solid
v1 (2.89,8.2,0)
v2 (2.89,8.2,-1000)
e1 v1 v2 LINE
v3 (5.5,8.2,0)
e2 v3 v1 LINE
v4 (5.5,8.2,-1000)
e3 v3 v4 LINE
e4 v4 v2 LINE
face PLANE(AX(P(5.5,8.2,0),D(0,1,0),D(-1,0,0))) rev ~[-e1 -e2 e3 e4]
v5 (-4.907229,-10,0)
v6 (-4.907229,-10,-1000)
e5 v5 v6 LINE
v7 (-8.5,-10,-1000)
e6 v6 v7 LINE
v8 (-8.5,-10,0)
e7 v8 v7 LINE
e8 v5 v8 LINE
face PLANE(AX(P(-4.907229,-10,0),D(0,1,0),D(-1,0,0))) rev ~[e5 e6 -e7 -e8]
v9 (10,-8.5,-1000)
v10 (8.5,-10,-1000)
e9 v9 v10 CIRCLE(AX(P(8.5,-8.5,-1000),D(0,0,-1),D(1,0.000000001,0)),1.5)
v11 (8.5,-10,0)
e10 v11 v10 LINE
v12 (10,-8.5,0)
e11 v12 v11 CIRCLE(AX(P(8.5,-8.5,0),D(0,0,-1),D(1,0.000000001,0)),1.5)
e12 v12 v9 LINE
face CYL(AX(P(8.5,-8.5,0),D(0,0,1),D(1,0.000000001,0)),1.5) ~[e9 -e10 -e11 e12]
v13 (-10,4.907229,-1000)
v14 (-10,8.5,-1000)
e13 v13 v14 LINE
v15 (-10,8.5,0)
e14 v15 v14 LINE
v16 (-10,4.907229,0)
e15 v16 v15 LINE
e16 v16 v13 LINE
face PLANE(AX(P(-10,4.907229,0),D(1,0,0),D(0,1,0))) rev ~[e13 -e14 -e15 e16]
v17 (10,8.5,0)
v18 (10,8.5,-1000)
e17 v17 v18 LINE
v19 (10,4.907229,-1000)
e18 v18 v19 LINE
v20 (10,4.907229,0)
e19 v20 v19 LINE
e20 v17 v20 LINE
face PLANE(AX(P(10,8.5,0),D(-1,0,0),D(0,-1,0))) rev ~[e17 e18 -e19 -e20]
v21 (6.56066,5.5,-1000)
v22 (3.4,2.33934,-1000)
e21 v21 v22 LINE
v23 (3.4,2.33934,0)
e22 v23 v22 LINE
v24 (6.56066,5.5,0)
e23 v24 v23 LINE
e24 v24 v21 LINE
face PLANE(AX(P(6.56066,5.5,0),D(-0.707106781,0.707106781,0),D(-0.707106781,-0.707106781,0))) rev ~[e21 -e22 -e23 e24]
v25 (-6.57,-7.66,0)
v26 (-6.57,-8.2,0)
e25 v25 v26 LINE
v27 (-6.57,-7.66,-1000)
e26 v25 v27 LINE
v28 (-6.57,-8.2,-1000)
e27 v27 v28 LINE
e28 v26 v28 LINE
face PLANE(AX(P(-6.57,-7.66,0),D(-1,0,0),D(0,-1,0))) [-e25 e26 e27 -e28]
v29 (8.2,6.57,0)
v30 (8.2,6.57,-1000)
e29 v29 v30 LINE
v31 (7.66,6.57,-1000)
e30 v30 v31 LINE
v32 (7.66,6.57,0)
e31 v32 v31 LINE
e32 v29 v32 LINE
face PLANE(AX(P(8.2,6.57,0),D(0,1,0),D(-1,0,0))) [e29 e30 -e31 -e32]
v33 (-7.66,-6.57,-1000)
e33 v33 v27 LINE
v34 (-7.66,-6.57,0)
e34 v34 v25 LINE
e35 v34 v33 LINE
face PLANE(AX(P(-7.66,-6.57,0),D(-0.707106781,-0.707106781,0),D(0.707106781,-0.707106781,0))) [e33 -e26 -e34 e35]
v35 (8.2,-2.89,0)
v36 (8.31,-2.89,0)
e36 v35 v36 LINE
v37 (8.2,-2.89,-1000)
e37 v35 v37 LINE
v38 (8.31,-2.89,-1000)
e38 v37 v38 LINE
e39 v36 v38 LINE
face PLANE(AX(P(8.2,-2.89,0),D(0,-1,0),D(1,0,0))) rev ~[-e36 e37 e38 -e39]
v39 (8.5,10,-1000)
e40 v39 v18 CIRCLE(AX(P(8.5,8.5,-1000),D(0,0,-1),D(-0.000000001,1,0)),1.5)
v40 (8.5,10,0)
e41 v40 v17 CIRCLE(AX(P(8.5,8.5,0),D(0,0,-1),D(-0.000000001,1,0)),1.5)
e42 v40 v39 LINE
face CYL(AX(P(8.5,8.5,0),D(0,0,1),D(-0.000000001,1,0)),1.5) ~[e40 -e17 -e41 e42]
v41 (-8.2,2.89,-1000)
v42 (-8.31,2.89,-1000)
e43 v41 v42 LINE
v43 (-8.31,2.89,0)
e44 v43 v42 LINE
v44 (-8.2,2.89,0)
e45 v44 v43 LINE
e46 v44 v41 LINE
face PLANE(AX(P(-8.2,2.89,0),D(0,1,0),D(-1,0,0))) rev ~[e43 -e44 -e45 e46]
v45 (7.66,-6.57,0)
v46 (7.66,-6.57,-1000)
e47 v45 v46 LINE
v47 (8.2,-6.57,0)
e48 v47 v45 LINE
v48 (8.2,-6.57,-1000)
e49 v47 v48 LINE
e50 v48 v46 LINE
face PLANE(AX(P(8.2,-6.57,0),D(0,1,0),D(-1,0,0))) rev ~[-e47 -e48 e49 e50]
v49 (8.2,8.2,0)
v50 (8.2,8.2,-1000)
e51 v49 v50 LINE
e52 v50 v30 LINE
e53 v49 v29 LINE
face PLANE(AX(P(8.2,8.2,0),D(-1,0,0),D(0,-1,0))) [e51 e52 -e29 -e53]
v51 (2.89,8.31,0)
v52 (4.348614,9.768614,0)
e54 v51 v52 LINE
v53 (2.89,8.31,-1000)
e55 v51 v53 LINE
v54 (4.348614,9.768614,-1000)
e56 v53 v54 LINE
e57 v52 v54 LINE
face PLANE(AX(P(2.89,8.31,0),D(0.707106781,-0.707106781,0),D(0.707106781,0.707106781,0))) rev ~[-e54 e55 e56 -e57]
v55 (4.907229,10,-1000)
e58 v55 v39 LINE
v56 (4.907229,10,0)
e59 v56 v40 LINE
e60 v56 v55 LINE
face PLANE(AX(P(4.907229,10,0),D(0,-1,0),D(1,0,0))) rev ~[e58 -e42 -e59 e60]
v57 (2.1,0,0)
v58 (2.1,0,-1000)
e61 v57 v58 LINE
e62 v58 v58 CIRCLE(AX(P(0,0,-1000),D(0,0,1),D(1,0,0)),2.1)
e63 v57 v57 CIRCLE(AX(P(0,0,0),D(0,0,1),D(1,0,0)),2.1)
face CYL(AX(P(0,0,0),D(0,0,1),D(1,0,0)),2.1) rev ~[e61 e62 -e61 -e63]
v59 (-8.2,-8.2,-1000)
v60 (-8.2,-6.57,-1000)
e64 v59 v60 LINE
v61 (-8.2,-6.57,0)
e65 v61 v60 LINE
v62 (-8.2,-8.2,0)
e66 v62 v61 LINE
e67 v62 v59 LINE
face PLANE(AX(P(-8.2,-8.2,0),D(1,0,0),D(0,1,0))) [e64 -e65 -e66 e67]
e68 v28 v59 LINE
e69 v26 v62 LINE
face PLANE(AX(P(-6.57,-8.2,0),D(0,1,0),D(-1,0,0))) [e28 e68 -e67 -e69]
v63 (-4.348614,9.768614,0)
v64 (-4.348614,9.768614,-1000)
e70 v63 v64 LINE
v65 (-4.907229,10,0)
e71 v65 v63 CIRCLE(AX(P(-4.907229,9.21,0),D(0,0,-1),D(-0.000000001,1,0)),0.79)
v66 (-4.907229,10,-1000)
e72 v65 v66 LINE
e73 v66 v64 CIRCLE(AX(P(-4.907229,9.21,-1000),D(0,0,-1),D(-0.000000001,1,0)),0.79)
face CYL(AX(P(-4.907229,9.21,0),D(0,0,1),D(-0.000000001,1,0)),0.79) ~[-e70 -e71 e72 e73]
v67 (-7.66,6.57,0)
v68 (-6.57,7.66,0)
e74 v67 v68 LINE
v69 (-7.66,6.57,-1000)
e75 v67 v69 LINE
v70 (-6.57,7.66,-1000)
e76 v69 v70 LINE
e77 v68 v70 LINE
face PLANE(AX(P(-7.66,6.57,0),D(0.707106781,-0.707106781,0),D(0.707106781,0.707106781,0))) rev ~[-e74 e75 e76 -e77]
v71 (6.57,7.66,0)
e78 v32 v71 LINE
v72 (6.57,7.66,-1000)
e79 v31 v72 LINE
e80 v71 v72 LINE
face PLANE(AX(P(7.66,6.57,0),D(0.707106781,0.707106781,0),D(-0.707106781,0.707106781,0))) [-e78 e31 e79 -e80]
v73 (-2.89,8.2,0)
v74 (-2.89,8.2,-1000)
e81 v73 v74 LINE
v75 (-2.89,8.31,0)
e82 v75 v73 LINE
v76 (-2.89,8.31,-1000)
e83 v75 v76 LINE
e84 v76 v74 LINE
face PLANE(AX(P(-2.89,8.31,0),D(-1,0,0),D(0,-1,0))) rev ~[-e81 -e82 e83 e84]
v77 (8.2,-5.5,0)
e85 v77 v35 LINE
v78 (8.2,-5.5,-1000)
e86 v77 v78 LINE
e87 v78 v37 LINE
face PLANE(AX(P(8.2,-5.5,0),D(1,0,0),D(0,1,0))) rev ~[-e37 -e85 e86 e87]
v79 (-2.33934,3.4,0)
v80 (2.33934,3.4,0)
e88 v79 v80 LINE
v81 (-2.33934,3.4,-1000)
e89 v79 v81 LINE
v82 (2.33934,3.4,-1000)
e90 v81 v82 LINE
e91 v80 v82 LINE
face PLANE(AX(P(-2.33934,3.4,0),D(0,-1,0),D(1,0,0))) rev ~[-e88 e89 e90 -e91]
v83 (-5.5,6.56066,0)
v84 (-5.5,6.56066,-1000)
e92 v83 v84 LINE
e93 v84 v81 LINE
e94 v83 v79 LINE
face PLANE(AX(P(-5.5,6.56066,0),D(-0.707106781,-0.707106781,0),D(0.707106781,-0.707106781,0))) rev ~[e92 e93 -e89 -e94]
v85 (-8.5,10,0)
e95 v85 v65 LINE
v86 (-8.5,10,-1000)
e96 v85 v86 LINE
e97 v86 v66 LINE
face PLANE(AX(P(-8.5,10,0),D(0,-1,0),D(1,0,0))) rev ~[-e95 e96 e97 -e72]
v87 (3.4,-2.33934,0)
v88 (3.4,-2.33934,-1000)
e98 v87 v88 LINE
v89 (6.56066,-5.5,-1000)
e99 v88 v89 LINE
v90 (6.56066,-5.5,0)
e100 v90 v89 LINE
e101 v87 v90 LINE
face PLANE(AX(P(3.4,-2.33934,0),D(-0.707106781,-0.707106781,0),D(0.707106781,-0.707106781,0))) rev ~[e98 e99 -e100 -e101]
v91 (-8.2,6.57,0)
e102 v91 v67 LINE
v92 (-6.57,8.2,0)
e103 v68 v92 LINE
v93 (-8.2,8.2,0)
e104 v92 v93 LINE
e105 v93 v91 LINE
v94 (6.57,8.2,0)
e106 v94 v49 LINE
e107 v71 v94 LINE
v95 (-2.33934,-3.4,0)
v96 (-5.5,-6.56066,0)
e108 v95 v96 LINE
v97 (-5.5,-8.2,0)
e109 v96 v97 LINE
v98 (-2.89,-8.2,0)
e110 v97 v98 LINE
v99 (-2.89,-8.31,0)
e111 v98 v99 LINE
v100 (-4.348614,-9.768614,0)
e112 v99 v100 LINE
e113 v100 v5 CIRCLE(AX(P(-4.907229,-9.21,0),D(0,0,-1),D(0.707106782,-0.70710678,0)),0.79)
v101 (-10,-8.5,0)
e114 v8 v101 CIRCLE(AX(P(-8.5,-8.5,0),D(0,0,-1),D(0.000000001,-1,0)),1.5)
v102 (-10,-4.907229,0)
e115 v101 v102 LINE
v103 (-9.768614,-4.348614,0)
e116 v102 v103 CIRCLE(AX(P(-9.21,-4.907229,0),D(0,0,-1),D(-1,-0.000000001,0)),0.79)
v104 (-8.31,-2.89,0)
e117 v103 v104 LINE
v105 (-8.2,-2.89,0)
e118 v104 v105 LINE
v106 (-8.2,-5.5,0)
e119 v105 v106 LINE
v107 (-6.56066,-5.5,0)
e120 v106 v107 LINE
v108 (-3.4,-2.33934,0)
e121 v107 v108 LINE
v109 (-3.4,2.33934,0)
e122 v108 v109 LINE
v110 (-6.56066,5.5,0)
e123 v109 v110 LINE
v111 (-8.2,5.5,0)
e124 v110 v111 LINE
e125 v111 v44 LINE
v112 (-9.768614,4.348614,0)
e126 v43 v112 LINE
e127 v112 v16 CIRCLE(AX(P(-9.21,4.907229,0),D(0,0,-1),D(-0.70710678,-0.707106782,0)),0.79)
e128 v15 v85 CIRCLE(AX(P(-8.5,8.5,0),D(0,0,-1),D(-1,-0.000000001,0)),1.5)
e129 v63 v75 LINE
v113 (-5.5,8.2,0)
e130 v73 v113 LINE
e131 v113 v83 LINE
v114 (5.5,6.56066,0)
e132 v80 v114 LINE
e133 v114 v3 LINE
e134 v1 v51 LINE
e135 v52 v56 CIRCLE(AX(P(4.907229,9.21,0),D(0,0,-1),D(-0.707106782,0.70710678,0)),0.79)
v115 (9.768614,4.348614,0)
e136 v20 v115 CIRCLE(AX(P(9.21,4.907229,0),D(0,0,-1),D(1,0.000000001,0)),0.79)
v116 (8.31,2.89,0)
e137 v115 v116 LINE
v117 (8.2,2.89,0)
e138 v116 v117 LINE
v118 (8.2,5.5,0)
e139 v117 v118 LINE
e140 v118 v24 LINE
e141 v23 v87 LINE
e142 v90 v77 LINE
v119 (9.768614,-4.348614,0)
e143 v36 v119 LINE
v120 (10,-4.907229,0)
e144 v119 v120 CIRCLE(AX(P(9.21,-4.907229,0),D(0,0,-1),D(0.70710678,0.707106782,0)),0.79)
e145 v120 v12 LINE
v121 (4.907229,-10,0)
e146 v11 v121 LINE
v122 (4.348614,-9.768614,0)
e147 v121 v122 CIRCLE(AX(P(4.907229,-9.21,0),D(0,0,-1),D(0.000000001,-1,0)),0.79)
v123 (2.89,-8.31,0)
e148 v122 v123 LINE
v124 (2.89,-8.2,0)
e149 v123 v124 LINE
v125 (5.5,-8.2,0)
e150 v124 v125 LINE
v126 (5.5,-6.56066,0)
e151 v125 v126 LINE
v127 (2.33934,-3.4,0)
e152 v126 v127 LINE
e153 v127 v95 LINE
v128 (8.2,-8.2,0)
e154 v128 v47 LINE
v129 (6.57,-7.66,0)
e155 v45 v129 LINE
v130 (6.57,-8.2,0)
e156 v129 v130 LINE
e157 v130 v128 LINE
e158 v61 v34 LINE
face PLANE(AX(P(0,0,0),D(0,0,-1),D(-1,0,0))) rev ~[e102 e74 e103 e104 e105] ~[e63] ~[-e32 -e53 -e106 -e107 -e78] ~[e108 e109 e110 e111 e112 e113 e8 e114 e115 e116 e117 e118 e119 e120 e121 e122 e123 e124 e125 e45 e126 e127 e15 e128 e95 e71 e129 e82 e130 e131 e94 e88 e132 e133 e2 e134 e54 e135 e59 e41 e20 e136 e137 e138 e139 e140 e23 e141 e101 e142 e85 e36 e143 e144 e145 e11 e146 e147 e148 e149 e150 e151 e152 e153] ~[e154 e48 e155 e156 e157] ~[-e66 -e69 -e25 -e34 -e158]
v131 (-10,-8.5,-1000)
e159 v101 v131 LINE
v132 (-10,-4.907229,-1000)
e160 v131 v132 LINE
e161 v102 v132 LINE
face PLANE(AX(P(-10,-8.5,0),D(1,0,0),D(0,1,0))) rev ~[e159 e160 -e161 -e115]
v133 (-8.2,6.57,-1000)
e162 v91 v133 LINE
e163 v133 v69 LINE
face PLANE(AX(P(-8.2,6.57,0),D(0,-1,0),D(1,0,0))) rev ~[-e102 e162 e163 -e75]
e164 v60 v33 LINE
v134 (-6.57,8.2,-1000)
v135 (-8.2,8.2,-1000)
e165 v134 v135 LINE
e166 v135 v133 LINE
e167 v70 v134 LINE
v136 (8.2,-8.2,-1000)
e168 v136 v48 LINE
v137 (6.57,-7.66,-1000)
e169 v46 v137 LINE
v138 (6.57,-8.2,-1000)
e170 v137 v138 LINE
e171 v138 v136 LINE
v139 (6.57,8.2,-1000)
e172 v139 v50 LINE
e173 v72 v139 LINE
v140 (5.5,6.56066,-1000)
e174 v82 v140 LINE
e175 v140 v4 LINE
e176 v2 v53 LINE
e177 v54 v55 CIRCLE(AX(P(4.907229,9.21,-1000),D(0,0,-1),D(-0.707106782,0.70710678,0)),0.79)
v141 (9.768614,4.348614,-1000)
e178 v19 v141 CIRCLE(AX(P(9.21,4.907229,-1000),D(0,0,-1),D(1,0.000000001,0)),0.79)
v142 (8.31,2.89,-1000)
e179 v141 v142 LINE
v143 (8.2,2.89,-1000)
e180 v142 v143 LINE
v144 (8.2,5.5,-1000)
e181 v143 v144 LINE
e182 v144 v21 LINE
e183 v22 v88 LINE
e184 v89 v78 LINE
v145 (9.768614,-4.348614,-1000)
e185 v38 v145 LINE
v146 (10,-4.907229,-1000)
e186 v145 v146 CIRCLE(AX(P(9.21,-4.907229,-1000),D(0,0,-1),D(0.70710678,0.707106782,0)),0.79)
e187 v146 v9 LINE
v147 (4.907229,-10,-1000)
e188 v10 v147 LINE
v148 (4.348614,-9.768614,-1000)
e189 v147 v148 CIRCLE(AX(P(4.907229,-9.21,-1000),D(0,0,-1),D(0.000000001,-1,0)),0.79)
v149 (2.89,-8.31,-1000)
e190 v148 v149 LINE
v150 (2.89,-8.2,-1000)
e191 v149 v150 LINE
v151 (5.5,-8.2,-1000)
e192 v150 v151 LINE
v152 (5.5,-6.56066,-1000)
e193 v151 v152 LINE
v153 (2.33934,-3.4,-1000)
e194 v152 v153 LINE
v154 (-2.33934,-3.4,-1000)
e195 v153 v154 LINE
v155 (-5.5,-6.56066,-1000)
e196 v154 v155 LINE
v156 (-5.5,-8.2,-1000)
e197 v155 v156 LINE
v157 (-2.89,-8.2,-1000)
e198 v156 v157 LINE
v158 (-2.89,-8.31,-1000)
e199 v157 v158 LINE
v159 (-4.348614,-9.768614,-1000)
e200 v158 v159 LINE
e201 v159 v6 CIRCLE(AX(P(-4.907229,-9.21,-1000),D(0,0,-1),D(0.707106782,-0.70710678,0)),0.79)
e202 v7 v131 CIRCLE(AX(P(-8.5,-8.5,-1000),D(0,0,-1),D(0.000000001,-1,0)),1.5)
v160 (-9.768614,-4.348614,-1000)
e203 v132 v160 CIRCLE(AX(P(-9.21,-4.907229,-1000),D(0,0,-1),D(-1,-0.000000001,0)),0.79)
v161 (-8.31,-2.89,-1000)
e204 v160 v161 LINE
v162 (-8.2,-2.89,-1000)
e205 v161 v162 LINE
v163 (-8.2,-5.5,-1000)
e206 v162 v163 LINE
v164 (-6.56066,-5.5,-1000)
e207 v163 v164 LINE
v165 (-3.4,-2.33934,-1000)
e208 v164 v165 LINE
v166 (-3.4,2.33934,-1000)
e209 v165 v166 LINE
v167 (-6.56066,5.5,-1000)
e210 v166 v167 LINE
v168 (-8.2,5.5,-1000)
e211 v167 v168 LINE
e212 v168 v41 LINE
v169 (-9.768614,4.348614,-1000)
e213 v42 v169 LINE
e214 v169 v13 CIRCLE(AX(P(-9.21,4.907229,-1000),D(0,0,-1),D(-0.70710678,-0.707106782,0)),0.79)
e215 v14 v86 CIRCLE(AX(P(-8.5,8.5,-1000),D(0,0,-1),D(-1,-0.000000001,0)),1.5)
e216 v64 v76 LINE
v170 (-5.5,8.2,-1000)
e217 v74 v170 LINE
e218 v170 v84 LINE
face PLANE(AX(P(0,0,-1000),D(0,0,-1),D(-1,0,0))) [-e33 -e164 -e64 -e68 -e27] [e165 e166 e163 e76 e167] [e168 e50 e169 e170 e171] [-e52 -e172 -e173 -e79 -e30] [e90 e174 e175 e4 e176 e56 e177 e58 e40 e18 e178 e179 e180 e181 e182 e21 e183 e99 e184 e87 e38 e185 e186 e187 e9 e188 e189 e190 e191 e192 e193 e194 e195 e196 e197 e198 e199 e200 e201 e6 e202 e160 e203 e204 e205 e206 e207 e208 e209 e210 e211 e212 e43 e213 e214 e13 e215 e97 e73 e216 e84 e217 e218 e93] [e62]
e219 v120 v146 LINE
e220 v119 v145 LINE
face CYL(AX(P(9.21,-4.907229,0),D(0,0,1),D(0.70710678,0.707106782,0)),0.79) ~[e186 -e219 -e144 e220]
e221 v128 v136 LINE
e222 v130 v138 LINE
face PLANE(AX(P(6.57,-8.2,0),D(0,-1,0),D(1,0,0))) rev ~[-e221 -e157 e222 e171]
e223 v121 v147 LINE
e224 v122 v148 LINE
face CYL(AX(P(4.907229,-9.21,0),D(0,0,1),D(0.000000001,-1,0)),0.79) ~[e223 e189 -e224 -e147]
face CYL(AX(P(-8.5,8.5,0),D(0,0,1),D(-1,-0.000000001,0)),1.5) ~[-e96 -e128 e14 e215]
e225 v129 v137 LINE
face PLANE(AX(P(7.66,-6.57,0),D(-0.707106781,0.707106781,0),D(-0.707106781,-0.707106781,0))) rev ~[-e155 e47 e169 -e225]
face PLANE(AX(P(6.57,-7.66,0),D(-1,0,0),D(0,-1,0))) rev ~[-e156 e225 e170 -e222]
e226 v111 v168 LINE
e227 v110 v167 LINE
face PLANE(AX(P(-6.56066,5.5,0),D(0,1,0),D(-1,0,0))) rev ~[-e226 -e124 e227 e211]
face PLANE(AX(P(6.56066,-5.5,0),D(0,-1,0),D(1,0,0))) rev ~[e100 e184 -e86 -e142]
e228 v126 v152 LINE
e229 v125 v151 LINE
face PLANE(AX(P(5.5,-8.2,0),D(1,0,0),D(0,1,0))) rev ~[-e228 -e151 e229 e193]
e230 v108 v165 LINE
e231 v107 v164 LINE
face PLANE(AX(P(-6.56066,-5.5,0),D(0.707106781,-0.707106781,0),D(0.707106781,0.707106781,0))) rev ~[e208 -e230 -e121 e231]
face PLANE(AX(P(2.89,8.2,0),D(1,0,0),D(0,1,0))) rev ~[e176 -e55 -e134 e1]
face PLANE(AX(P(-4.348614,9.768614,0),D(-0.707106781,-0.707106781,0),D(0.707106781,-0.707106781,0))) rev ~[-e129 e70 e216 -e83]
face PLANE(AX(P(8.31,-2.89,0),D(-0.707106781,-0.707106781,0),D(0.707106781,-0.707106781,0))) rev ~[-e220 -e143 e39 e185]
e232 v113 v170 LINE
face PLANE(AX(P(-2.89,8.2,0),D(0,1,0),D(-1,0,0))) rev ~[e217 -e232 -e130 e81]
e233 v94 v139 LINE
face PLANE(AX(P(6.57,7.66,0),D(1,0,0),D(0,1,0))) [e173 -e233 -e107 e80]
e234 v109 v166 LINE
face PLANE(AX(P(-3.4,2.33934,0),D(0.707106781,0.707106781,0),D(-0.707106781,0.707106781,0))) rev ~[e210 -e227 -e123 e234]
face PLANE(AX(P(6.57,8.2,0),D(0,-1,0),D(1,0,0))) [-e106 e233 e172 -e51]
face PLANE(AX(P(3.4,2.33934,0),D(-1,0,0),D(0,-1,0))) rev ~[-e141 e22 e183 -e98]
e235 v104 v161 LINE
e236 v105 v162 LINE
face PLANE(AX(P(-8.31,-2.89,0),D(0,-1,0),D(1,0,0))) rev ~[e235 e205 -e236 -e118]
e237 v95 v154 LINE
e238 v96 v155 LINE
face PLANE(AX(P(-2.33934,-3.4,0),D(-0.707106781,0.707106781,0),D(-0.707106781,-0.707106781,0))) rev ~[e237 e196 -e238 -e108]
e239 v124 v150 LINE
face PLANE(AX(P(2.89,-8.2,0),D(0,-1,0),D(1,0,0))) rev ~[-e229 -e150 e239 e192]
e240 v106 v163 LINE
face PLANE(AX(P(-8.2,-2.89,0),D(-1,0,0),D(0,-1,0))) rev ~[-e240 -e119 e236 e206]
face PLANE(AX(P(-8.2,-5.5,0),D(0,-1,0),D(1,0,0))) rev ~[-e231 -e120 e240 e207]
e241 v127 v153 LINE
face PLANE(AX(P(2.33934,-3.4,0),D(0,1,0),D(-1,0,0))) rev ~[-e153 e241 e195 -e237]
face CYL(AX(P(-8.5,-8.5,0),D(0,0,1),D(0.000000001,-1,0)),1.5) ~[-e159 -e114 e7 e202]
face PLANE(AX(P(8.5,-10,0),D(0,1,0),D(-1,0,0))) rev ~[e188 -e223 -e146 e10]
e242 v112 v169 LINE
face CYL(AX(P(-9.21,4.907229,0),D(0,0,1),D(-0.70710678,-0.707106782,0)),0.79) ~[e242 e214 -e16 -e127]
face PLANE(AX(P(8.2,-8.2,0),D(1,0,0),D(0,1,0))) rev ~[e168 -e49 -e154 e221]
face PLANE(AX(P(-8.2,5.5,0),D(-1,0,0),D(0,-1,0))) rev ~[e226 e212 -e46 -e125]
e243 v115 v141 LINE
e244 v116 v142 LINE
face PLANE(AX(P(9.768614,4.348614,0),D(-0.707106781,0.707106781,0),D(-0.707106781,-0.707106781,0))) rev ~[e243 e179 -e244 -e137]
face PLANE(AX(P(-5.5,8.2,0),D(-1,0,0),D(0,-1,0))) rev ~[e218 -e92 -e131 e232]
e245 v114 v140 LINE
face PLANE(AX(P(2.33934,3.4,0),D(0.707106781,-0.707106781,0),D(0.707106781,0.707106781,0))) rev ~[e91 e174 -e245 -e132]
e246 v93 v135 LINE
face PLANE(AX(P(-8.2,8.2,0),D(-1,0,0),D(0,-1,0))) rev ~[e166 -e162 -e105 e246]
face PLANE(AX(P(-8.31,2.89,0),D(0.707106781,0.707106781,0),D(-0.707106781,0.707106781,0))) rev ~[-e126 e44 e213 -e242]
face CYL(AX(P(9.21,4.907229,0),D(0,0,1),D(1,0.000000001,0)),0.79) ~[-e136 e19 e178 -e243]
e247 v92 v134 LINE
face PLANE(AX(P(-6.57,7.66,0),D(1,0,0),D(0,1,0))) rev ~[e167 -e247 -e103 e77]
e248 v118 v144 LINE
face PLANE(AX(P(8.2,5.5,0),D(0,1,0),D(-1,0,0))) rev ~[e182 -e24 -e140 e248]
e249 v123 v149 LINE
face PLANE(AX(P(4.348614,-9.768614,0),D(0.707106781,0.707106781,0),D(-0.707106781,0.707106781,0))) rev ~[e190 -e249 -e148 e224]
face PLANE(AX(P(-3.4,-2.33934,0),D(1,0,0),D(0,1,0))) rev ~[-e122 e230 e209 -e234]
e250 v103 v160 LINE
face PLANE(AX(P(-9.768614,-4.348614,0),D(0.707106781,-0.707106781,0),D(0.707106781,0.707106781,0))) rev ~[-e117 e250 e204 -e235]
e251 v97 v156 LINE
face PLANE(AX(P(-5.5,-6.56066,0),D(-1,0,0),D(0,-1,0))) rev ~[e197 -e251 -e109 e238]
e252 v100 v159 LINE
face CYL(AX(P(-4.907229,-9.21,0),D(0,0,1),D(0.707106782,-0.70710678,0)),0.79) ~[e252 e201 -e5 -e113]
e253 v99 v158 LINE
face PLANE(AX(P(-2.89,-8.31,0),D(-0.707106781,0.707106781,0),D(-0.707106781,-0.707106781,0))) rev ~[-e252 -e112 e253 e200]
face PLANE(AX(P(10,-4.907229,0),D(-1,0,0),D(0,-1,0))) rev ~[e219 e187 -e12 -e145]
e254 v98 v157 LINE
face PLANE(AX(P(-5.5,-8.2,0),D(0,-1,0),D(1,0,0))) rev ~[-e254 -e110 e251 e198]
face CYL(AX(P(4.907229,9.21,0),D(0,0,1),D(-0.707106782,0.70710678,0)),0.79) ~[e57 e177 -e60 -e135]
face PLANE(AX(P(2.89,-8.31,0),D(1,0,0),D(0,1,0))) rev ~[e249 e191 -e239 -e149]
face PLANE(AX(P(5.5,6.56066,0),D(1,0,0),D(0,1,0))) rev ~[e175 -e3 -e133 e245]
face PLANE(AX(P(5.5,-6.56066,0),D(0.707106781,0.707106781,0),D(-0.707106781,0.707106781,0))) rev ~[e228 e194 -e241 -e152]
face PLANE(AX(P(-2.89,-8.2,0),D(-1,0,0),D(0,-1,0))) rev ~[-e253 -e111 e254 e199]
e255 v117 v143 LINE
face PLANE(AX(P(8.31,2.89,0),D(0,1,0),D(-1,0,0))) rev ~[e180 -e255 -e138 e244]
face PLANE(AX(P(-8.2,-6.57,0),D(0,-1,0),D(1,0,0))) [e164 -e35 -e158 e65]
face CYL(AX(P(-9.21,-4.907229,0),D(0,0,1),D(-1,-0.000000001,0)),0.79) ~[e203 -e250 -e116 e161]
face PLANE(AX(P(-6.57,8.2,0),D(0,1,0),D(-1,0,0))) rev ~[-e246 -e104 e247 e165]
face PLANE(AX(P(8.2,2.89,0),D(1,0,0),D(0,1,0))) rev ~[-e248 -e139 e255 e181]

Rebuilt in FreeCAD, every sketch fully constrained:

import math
import FreeCAD as App
import Part
import Sketcher
from FreeCAD import Vector

doc = App.newDocument("Part")
body = doc.addObject("PartDesign::Body", "Body")

# Sketch on XY plane
sketch1 = body.newObject("Sketcher::SketchObject", "Sketch")
sketch1.AttachmentSupport = (doc.getObject("XY_Plane"), [""])
sketch1.MapMode = "FlatFace"
sketch1.addGeometry(Part.LineSegment(Vector(-3.4, 2.34, 0), Vector(-3.4, -2.34, 0)), False)
sketch1.addGeometry(Part.LineSegment(Vector(-3.4, -2.34, 0), Vector(-6.56, -5.5, 0)), False)
sketch1.addGeometry(Part.LineSegment(Vector(-6.56, -5.5, 0), Vector(-8.2, -5.5, 0)), False)
sketch1.addGeometry(Part.LineSegment(Vector(-8.2, -5.5, 0), Vector(-8.2, -2.89, 0)), False)
sketch1.addGeometry(Part.LineSegment(Vector(-8.2, -2.89, 0), Vector(-8.31, -2.89, 0)), False)
sketch1.addGeometry(Part.LineSegment(Vector(-8.31, -2.89, 0), Vector(-9.77, -4.35, 0)), False)
sketch1.addGeometry(Part.ArcOfCircle(Part.Circle(Vector(-9.21, -4.91, 0), Vector(0, 0, 1), 0.79), math.radians(135), math.radians(180)), False)
sketch1.addGeometry(Part.LineSegment(Vector(-10, -4.91, 0), Vector(-10, -8.5, 0)), False)
sketch1.addGeometry(Part.ArcOfCircle(Part.Circle(Vector(-8.5, -8.5, 0), Vector(0, 0, 1), 1.5), math.radians(180), math.radians(270)), False)
sketch1.addGeometry(Part.LineSegment(Vector(-8.5, -10, 0), Vector(-4.91, -10, 0)), False)
sketch1.addGeometry(Part.ArcOfCircle(Part.Circle(Vector(-4.91, -9.21, 0), Vector(0, 0, 1), 0.79), math.radians(-90), math.radians(-45)), False)
sketch1.addGeometry(Part.LineSegment(Vector(-4.35, -9.77, 0), Vector(-2.89, -8.31, 0)), False)
sketch1.addGeometry(Part.LineSegment(Vector(-2.89, -8.31, 0), Vector(-2.89, -8.2, 0)), False)
sketch1.addGeometry(Part.LineSegment(Vector(-2.89, -8.2, 0), Vector(-5.5, -8.2, 0)), False)
sketch1.addGeometry(Part.LineSegment(Vector(-5.5, -8.2, 0), Vector(-5.5, -6.56, 0)), False)
sketch1.addGeometry(Part.LineSegment(Vector(-5.5, -6.56, 0), Vector(-2.34, -3.4, 0)), False)
sketch1.addGeometry(Part.LineSegment(Vector(-2.34, -3.4, 0), Vector(2.34, -3.4, 0)), False)
sketch1.addGeometry(Part.LineSegment(Vector(2.34, -3.4, 0), Vector(5.5, -6.56, 0)), False)
sketch1.addGeometry(Part.LineSegment(Vector(5.5, -6.56, 0), Vector(5.5, -8.2, 0)), False)
sketch1.addGeometry(Part.LineSegment(Vector(5.5, -8.2, 0), Vector(2.89, -8.2, 0)), False)
sketch1.addGeometry(Part.LineSegment(Vector(2.89, -8.2, 0), Vector(2.89, -8.31, 0)), False)
sketch1.addGeometry(Part.LineSegment(Vector(2.89, -8.31, 0), Vector(4.35, -9.77, 0)), False)
sketch1.addGeometry(Part.ArcOfCircle(Part.Circle(Vector(4.91, -9.21, 0), Vector(0, 0, 1), 0.79), math.radians(-135), math.radians(-90)), False)
sketch1.addGeometry(Part.LineSegment(Vector(4.91, -10, 0), Vector(8.5, -10, 0)), False)
sketch1.addGeometry(Part.ArcOfCircle(Part.Circle(Vector(8.5, -8.5, 0), Vector(0, 0, 1), 1.5), math.radians(-90), math.radians(0)), False)
sketch1.addGeometry(Part.LineSegment(Vector(10, -8.5, 0), Vector(10, -4.91, 0)), False)
sketch1.addGeometry(Part.ArcOfCircle(Part.Circle(Vector(9.21, -4.91, 0), Vector(0, 0, 1), 0.79), math.radians(0), math.radians(45)), False)
sketch1.addGeometry(Part.LineSegment(Vector(9.77, -4.35, 0), Vector(8.31, -2.89, 0)), False)
sketch1.addGeometry(Part.LineSegment(Vector(8.31, -2.89, 0), Vector(8.2, -2.89, 0)), False)
sketch1.addGeometry(Part.LineSegment(Vector(8.2, -2.89, 0), Vector(8.2, -5.5, 0)), False)
sketch1.addGeometry(Part.LineSegment(Vector(8.2, -5.5, 0), Vector(6.56, -5.5, 0)), False)
sketch1.addGeometry(Part.LineSegment(Vector(6.56, -5.5, 0), Vector(3.4, -2.34, 0)), False)
sketch1.addGeometry(Part.LineSegment(Vector(3.4, -2.34, 0), Vector(3.4, 2.34, 0)), False)
sketch1.addGeometry(Part.LineSegment(Vector(3.4, 2.34, 0), Vector(6.56, 5.5, 0)), False)
sketch1.addGeometry(Part.LineSegment(Vector(6.56, 5.5, 0), Vector(8.2, 5.5, 0)), False)
sketch1.addGeometry(Part.LineSegment(Vector(8.2, 5.5, 0), Vector(8.2, 2.89, 0)), False)
sketch1.addGeometry(Part.LineSegment(Vector(8.2, 2.89, 0), Vector(8.31, 2.89, 0)), False)
sketch1.addGeometry(Part.LineSegment(Vector(8.31, 2.89, 0), Vector(9.77, 4.35, 0)), False)
sketch1.addGeometry(Part.ArcOfCircle(Part.Circle(Vector(9.21, 4.91, 0), Vector(0, 0, 1), 0.79), math.radians(-45), math.radians(0)), False)
sketch1.addGeometry(Part.LineSegment(Vector(10, 4.91, 0), Vector(10, 8.5, 0)), False)
sketch1.addGeometry(Part.ArcOfCircle(Part.Circle(Vector(8.5, 8.5, 0), Vector(0, 0, 1), 1.5), math.radians(0), math.radians(90)), False)
sketch1.addGeometry(Part.LineSegment(Vector(8.5, 10, 0), Vector(4.91, 10, 0)), False)
sketch1.addGeometry(Part.ArcOfCircle(Part.Circle(Vector(4.91, 9.21, 0), Vector(0, 0, 1), 0.79), math.radians(90), math.radians(135)), False)
sketch1.addGeometry(Part.LineSegment(Vector(4.35, 9.77, 0), Vector(2.89, 8.31, 0)), False)
sketch1.addGeometry(Part.LineSegment(Vector(2.89, 8.31, 0), Vector(2.89, 8.2, 0)), False)
sketch1.addGeometry(Part.LineSegment(Vector(2.89, 8.2, 0), Vector(5.5, 8.2, 0)), False)
sketch1.addGeometry(Part.LineSegment(Vector(5.5, 8.2, 0), Vector(5.5, 6.56, 0)), False)
sketch1.addGeometry(Part.LineSegment(Vector(5.5, 6.56, 0), Vector(2.34, 3.4, 0)), False)
sketch1.addGeometry(Part.LineSegment(Vector(2.34, 3.4, 0), Vector(-2.34, 3.4, 0)), False)
sketch1.addGeometry(Part.LineSegment(Vector(-2.34, 3.4, 0), Vector(-5.5, 6.56, 0)), False)
sketch1.addGeometry(Part.LineSegment(Vector(-5.5, 6.56, 0), Vector(-5.5, 8.2, 0)), False)
sketch1.addGeometry(Part.LineSegment(Vector(-5.5, 8.2, 0), Vector(-2.89, 8.2, 0)), False)
sketch1.addGeometry(Part.LineSegment(Vector(-2.89, 8.2, 0), Vector(-2.89, 8.31, 0)), False)
sketch1.addGeometry(Part.LineSegment(Vector(-2.89, 8.31, 0), Vector(-4.35, 9.77, 0)), False)
sketch1.addGeometry(Part.ArcOfCircle(Part.Circle(Vector(-4.91, 9.21, 0), Vector(0, 0, 1), 0.79), math.radians(45), math.radians(90)), False)
sketch1.addGeometry(Part.LineSegment(Vector(-4.91, 10, 0), Vector(-8.5, 10, 0)), False)
sketch1.addGeometry(Part.ArcOfCircle(Part.Circle(Vector(-8.5, 8.5, 0), Vector(0, 0, 1), 1.5), math.radians(90), math.radians(180)), False)
sketch1.addGeometry(Part.LineSegment(Vector(-10, 8.5, 0), Vector(-10, 4.91, 0)), False)
sketch1.addGeometry(Part.ArcOfCircle(Part.Circle(Vector(-9.21, 4.91, 0), Vector(0, 0, 1), 0.79), math.radians(180), math.radians(225)), False)
sketch1.addGeometry(Part.LineSegment(Vector(-9.77, 4.35, 0), Vector(-8.31, 2.89, 0)), False)
sketch1.addGeometry(Part.LineSegment(Vector(-8.31, 2.89, 0), Vector(-8.2, 2.89, 0)), False)
sketch1.addGeometry(Part.LineSegment(Vector(-8.2, 2.89, 0), Vector(-8.2, 5.5, 0)), False)
sketch1.addGeometry(Part.LineSegment(Vector(-8.2, 5.5, 0), Vector(-6.56, 5.5, 0)), False)
sketch1.addGeometry(Part.LineSegment(Vector(-6.56, 5.5, 0), Vector(-3.4, 2.34, 0)), False)
sketch1.addGeometry(Part.LineSegment(Vector(7.66, -6.57, 0), Vector(8.2, -6.57, 0)), False)
sketch1.addGeometry(Part.LineSegment(Vector(8.2, -6.57, 0), Vector(8.2, -8.2, 0)), False)
sketch1.addGeometry(Part.LineSegment(Vector(8.2, -8.2, 0), Vector(6.57, -8.2, 0)), False)
sketch1.addGeometry(Part.LineSegment(Vector(6.57, -8.2, 0), Vector(6.57, -7.66, 0)), False)
sketch1.addGeometry(Part.LineSegment(Vector(6.57, -7.66, 0), Vector(7.66, -6.57, 0)), False)
sketch1.addGeometry(Part.LineSegment(Vector(-8.2, -6.57, 0), Vector(-7.66, -6.57, 0)), False)
sketch1.addGeometry(Part.LineSegment(Vector(-7.66, -6.57, 0), Vector(-6.57, -7.66, 0)), False)
sketch1.addGeometry(Part.LineSegment(Vector(-6.57, -7.66, 0), Vector(-6.57, -8.2, 0)), False)
sketch1.addGeometry(Part.LineSegment(Vector(-6.57, -8.2, 0), Vector(-8.2, -8.2, 0)), False)
sketch1.addGeometry(Part.LineSegment(Vector(-8.2, -8.2, 0), Vector(-8.2, -6.57, 0)), False)
sketch1.addGeometry(Part.LineSegment(Vector(8.2, 6.57, 0), Vector(7.66, 6.57, 0)), False)
sketch1.addGeometry(Part.LineSegment(Vector(7.66, 6.57, 0), Vector(6.57, 7.66, 0)), False)
sketch1.addGeometry(Part.LineSegment(Vector(6.57, 7.66, 0), Vector(6.57, 8.2, 0)), False)
sketch1.addGeometry(Part.LineSegment(Vector(6.57, 8.2, 0), Vector(8.2, 8.2, 0)), False)
sketch1.addGeometry(Part.LineSegment(Vector(8.2, 8.2, 0), Vector(8.2, 6.57, 0)), False)
sketch1.addGeometry(Part.Circle(Vector(0, 0, 0), Vector(0, 0, 1), 2.1), False)
sketch1.addGeometry(Part.LineSegment(Vector(-7.66, 6.57, 0), Vector(-8.2, 6.57, 0)), False)
sketch1.addGeometry(Part.LineSegment(Vector(-8.2, 6.57, 0), Vector(-8.2, 8.2, 0)), False)
sketch1.addGeometry(Part.LineSegment(Vector(-8.2, 8.2, 0), Vector(-6.57, 8.2, 0)), False)
sketch1.addGeometry(Part.LineSegment(Vector(-6.57, 8.2, 0), Vector(-6.57, 7.66, 0)), False)
sketch1.addGeometry(Part.LineSegment(Vector(-6.57, 7.66, 0), Vector(-7.66, 6.57, 0)), False)
sketch1.addConstraint(Sketcher.Constraint("Coincident", 0, 2, 1, 1))
sketch1.addConstraint(Sketcher.Constraint("Coincident", 1, 2, 2, 1))
sketch1.addConstraint(Sketcher.Constraint("Coincident", 2, 2, 3, 1))
sketch1.addConstraint(Sketcher.Constraint("Coincident", 3, 2, 4, 1))
sketch1.addConstraint(Sketcher.Constraint("Coincident", 4, 2, 5, 1))
sketch1.addConstraint(Sketcher.Constraint("Tangent", 5, 2, 6, 1))
sketch1.addConstraint(Sketcher.Constraint("Tangent", 6, 2, 7, 1))
sketch1.addConstraint(Sketcher.Constraint("Tangent", 7, 2, 8, 1))
sketch1.addConstraint(Sketcher.Constraint("Tangent", 8, 2, 9, 1))
sketch1.addConstraint(Sketcher.Constraint("Tangent", 9, 2, 10, 1))
sketch1.addConstraint(Sketcher.Constraint("Tangent", 10, 2, 11, 1))
sketch1.addConstraint(Sketcher.Constraint("Coincident", 11, 2, 12, 1))
sketch1.addConstraint(Sketcher.Constraint("Coincident", 12, 2, 13, 1))
sketch1.addConstraint(Sketcher.Constraint("Coincident", 13, 2, 14, 1))
sketch1.addConstraint(Sketcher.Constraint("Coincident", 14, 2, 15, 1))
sketch1.addConstraint(Sketcher.Constraint("Coincident", 15, 2, 16, 1))
sketch1.addConstraint(Sketcher.Constraint("Coincident", 16, 2, 17, 1))
sketch1.addConstraint(Sketcher.Constraint("Coincident", 17, 2, 18, 1))
sketch1.addConstraint(Sketcher.Constraint("Coincident", 18, 2, 19, 1))
sketch1.addConstraint(Sketcher.Constraint("Coincident", 19, 2, 20, 1))
sketch1.addConstraint(Sketcher.Constraint("Coincident", 20, 2, 21, 1))
sketch1.addConstraint(Sketcher.Constraint("Tangent", 21, 2, 22, 1))
sketch1.addConstraint(Sketcher.Constraint("Tangent", 22, 2, 23, 1))
sketch1.addConstraint(Sketcher.Constraint("Tangent", 23, 2, 24, 1))
sketch1.addConstraint(Sketcher.Constraint("Tangent", 24, 2, 25, 1))
sketch1.addConstraint(Sketcher.Constraint("Tangent", 25, 2, 26, 1))
sketch1.addConstraint(Sketcher.Constraint("Tangent", 26, 2, 27, 1))
sketch1.addConstraint(Sketcher.Constraint("Coincident", 27, 2, 28, 1))
sketch1.addConstraint(Sketcher.Constraint("Coincident", 28, 2, 29, 1))
sketch1.addConstraint(Sketcher.Constraint("Coincident", 29, 2, 30, 1))
sketch1.addConstraint(Sketcher.Constraint("Coincident", 30, 2, 31, 1))
sketch1.addConstraint(Sketcher.Constraint("Coincident", 31, 2, 32, 1))
sketch1.addConstraint(Sketcher.Constraint("Coincident", 32, 2, 33, 1))
sketch1.addConstraint(Sketcher.Constraint("Coincident", 33, 2, 34, 1))
sketch1.addConstraint(Sketcher.Constraint("Coincident", 34, 2, 35, 1))
sketch1.addConstraint(Sketcher.Constraint("Coincident", 35, 2, 36, 1))
sketch1.addConstraint(Sketcher.Constraint("Coincident", 36, 2, 37, 1))
sketch1.addConstraint(Sketcher.Constraint("Tangent", 37, 2, 38, 1))
sketch1.addConstraint(Sketcher.Constraint("Tangent", 38, 2, 39, 1))
sketch1.addConstraint(Sketcher.Constraint("Tangent", 39, 2, 40, 1))
sketch1.addConstraint(Sketcher.Constraint("Tangent", 40, 2, 41, 1))
sketch1.addConstraint(Sketcher.Constraint("Tangent", 41, 2, 42, 1))
sketch1.addConstraint(Sketcher.Constraint("Tangent", 42, 2, 43, 1))
sketch1.addConstraint(Sketcher.Constraint("Coincident", 43, 2, 44, 1))
sketch1.addConstraint(Sketcher.Constraint("Coincident", 44, 2, 45, 1))
sketch1.addConstraint(Sketcher.Constraint("Coincident", 45, 2, 46, 1))
sketch1.addConstraint(Sketcher.Constraint("Coincident", 46, 2, 47, 1))
sketch1.addConstraint(Sketcher.Constraint("Coincident", 47, 2, 48, 1))
sketch1.addConstraint(Sketcher.Constraint("Coincident", 48, 2, 49, 1))
sketch1.addConstraint(Sketcher.Constraint("Coincident", 49, 2, 50, 1))
sketch1.addConstraint(Sketcher.Constraint("Coincident", 50, 2, 51, 1))
sketch1.addConstraint(Sketcher.Constraint("Coincident", 51, 2, 52, 1))
sketch1.addConstraint(Sketcher.Constraint("Coincident", 52, 2, 53, 1))
sketch1.addConstraint(Sketcher.Constraint("Tangent", 53, 2, 54, 1))
sketch1.addConstraint(Sketcher.Constraint("Tangent", 54, 2, 55, 1))
sketch1.addConstraint(Sketcher.Constraint("Tangent", 55, 2, 56, 1))
sketch1.addConstraint(Sketcher.Constraint("Tangent", 56, 2, 57, 1))
sketch1.addConstraint(Sketcher.Constraint("Tangent", 57, 2, 58, 1))
sketch1.addConstraint(Sketcher.Constraint("Tangent", 58, 2, 59, 1))
sketch1.addConstraint(Sketcher.Constraint("Coincident", 59, 2, 60, 1))
sketch1.addConstraint(Sketcher.Constraint("Coincident", 60, 2, 61, 1))
sketch1.addConstraint(Sketcher.Constraint("Coincident", 61, 2, 62, 1))
sketch1.addConstraint(Sketcher.Constraint("Coincident", 62, 2, 63, 1))
sketch1.addConstraint(Sketcher.Constraint("Coincident", 63, 2, 0, 1))
sketch1.addConstraint(Sketcher.Constraint("Coincident", 64, 2, 65, 1))
sketch1.addConstraint(Sketcher.Constraint("Coincident", 65, 2, 66, 1))
sketch1.addConstraint(Sketcher.Constraint("Coincident", 66, 2, 67, 1))
sketch1.addConstraint(Sketcher.Constraint("Coincident", 67, 2, 68, 1))
sketch1.addConstraint(Sketcher.Constraint("Coincident", 68, 2, 64, 1))
sketch1.addConstraint(Sketcher.Constraint("Coincident", 69, 2, 70, 1))
sketch1.addConstraint(Sketcher.Constraint("Coincident", 70, 2, 71, 1))
sketch1.addConstraint(Sketcher.Constraint("Coincident", 71, 2, 72, 1))
sketch1.addConstraint(Sketcher.Constraint("Coincident", 72, 2, 73, 1))
sketch1.addConstraint(Sketcher.Constraint("Coincident", 73, 2, 69, 1))
sketch1.addConstraint(Sketcher.Constraint("Coincident", 74, 2, 75, 1))
sketch1.addConstraint(Sketcher.Constraint("Coincident", 75, 2, 76, 1))
sketch1.addConstraint(Sketcher.Constraint("Coincident", 76, 2, 77, 1))
sketch1.addConstraint(Sketcher.Constraint("Coincident", 77, 2, 78, 1))
sketch1.addConstraint(Sketcher.Constraint("Coincident", 78, 2, 74, 1))
sketch1.addConstraint(Sketcher.Constraint("Coincident", 80, 2, 81, 1))
sketch1.addConstraint(Sketcher.Constraint("Coincident", 81, 2, 82, 1))
sketch1.addConstraint(Sketcher.Constraint("Coincident", 82, 2, 83, 1))
sketch1.addConstraint(Sketcher.Constraint("Coincident", 83, 2, 84, 1))
sketch1.addConstraint(Sketcher.Constraint("Coincident", 84, 2, 80, 1))
sketch1.addConstraint(Sketcher.Constraint("Vertical", 0))
sketch1.addConstraint(Sketcher.Constraint("Horizontal", 2))
sketch1.addConstraint(Sketcher.Constraint("Vertical", 3))
sketch1.addConstraint(Sketcher.Constraint("Horizontal", 4))
sketch1.addConstraint(Sketcher.Constraint("Vertical", 7))
sketch1.addConstraint(Sketcher.Constraint("Horizontal", 9))
sketch1.addConstraint(Sketcher.Constraint("Vertical", 12))
sketch1.addConstraint(Sketcher.Constraint("Horizontal", 13))
sketch1.addConstraint(Sketcher.Constraint("Vertical", 14))
sketch1.addConstraint(Sketcher.Constraint("Horizontal", 16))
sketch1.addConstraint(Sketcher.Constraint("Vertical", 18))
sketch1.addConstraint(Sketcher.Constraint("Horizontal", 19))
sketch1.addConstraint(Sketcher.Constraint("Vertical", 20))
sketch1.addConstraint(Sketcher.Constraint("Horizontal", 23))
sketch1.addConstraint(Sketcher.Constraint("Vertical", 25))
sketch1.addConstraint(Sketcher.Constraint("Horizontal", 28))
sketch1.addConstraint(Sketcher.Constraint("Vertical", 29))
sketch1.addConstraint(Sketcher.Constraint("Horizontal", 30))
sketch1.addConstraint(Sketcher.Constraint("Vertical", 32))
sketch1.addConstraint(Sketcher.Constraint("Horizontal", 34))
sketch1.addConstraint(Sketcher.Constraint("Vertical", 35))
sketch1.addConstraint(Sketcher.Constraint("Horizontal", 36))
sketch1.addConstraint(Sketcher.Constraint("Vertical", 39))
sketch1.addConstraint(Sketcher.Constraint("Horizontal", 41))
sketch1.addConstraint(Sketcher.Constraint("Vertical", 44))
sketch1.addConstraint(Sketcher.Constraint("Horizontal", 45))
sketch1.addConstraint(Sketcher.Constraint("Vertical", 46))
sketch1.addConstraint(Sketcher.Constraint("Horizontal", 48))
sketch1.addConstraint(Sketcher.Constraint("Vertical", 50))
sketch1.addConstraint(Sketcher.Constraint("Horizontal", 51))
sketch1.addConstraint(Sketcher.Constraint("Vertical", 52))
sketch1.addConstraint(Sketcher.Constraint("Horizontal", 55))
sketch1.addConstraint(Sketcher.Constraint("Vertical", 57))
sketch1.addConstraint(Sketcher.Constraint("Horizontal", 60))
sketch1.addConstraint(Sketcher.Constraint("Vertical", 61))
sketch1.addConstraint(Sketcher.Constraint("Horizontal", 62))
sketch1.addConstraint(Sketcher.Constraint("Horizontal", 64))
sketch1.addConstraint(Sketcher.Constraint("Vertical", 65))
sketch1.addConstraint(Sketcher.Constraint("Horizontal", 66))
sketch1.addConstraint(Sketcher.Constraint("Vertical", 67))
sketch1.addConstraint(Sketcher.Constraint("Horizontal", 69))
sketch1.addConstraint(Sketcher.Constraint("Vertical", 71))
sketch1.addConstraint(Sketcher.Constraint("Horizontal", 72))
sketch1.addConstraint(Sketcher.Constraint("Vertical", 73))
sketch1.addConstraint(Sketcher.Constraint("Horizontal", 74))
sketch1.addConstraint(Sketcher.Constraint("Vertical", 76))
sketch1.addConstraint(Sketcher.Constraint("Horizontal", 77))
sketch1.addConstraint(Sketcher.Constraint("Vertical", 78))
sketch1.addConstraint(Sketcher.Constraint("Horizontal", 80))
sketch1.addConstraint(Sketcher.Constraint("Vertical", 81))
sketch1.addConstraint(Sketcher.Constraint("Horizontal", 82))
sketch1.addConstraint(Sketcher.Constraint("Vertical", 83))
sketch1.addConstraint(Sketcher.Constraint("Coincident", 79, 3, -1, 1))
sketch1.addConstraint(Sketcher.Constraint("Equal", 6, 10))
sketch1.addConstraint(Sketcher.Constraint("Equal", 10, 22))
sketch1.addConstraint(Sketcher.Constraint("Equal", 8, 24))
sketch1.addConstraint(Sketcher.Constraint("Equal", 22, 26))
sketch1.addConstraint(Sketcher.Constraint("Equal", 26, 38))
sketch1.addConstraint(Sketcher.Constraint("Equal", 24, 40))
sketch1.addConstraint(Sketcher.Constraint("Equal", 38, 42))
sketch1.addConstraint(Sketcher.Constraint("Equal", 42, 54))
sketch1.addConstraint(Sketcher.Constraint("Equal", 40, 56))
sketch1.addConstraint(Sketcher.Constraint("Equal", 54, 58))
sketch1.addConstraint(Sketcher.Constraint("Symmetric", 6, 3, 38, 3, -1, 1))
sketch1.addConstraint(Sketcher.Constraint("Symmetric", 10, 3, 42, 3, -1, 1))
sketch1.addConstraint(Sketcher.Constraint("Symmetric", 22, 3, 54, 3, -1, 1))
sketch1.addConstraint(Sketcher.Constraint("Symmetric", 26, 3, 58, 3, -1, 1))
sketch1.addConstraint(Sketcher.Constraint("Symmetric", 0, 2, 32, 2, -1, 1))
sketch1.addConstraint(Sketcher.Constraint("Symmetric", 1, 2, 33, 2, -1, 1))
sketch1.addConstraint(Sketcher.Constraint("Symmetric", 3, 2, 35, 2, -1, 1))
sketch1.addConstraint(Sketcher.Constraint("Symmetric", 11, 2, 43, 2, -1, 1))
sketch1.addConstraint(Sketcher.Constraint("Symmetric", 13, 2, 45, 2, -1, 1))
sketch1.addConstraint(Sketcher.Constraint("Symmetric", 15, 2, 47, 2, -1, 1))
sketch1.addConstraint(Sketcher.Constraint("Symmetric", 17, 2, 49, 2, -1, 1))
sketch1.addConstraint(Sketcher.Constraint("Symmetric", 19, 2, 51, 2, -1, 1))
sketch1.addConstraint(Sketcher.Constraint("Symmetric", 27, 2, 59, 2, -1, 1))
sketch1.addConstraint(Sketcher.Constraint("Symmetric", 29, 2, 61, 2, -1, 1))
sketch1.addConstraint(Sketcher.Constraint("Symmetric", 69, 2, 74, 2, -1, 1))
sketch1.addConstraint(Sketcher.Constraint("Symmetric", 70, 2, 75, 2, -1, 1))
sketch1.addConstraint(Sketcher.Constraint("Symmetric", 72, 2, 77, 2, -1, 1))
sketch1.addConstraint(Sketcher.Constraint("Symmetric", 64, 2, 80, 2, -1, 1))
sketch1.addConstraint(Sketcher.Constraint("Symmetric", 66, 2, 82, 2, -1, 1))
sketch1.addConstraint(Sketcher.Constraint("Symmetric", 10, 3, 22, 3, -2))
sketch1.addConstraint(Sketcher.Constraint("Symmetric", 6, 3, 26, 3, -2))
sketch1.addConstraint(Sketcher.Constraint("Symmetric", 14, 2, 17, 2, -2))
sketch1.addConstraint(Sketcher.Constraint("Symmetric", 12, 2, 19, 2, -2))
sketch1.addConstraint(Sketcher.Constraint("Symmetric", 4, 2, 27, 2, -2))
sketch1.addConstraint(Sketcher.Constraint("Symmetric", 2, 2, 29, 2, -2))
sketch1.addConstraint(Sketcher.Constraint("Symmetric", 68, 2, 69, 2, -2))
sketch1.addConstraint(Sketcher.Constraint("Symmetric", 67, 2, 70, 2, -2))
sketch1.addConstraint(Sketcher.Constraint("Symmetric", 65, 2, 72, 2, -2))
sketch1.addConstraint(Sketcher.Constraint("Parallel", 1, 5))
sketch1.addConstraint(Sketcher.Constraint("Parallel", 5, 11))
sketch1.addConstraint(Sketcher.Constraint("Parallel", 11, 15))
sketch1.addConstraint(Sketcher.Constraint("Perpendicular", 15, 17))
sketch1.addConstraint(Sketcher.Constraint("Parallel", 17, 21))
sketch1.addConstraint(Sketcher.Constraint("Parallel", 21, 27))
sketch1.addConstraint(Sketcher.Constraint("Parallel", 27, 31))
sketch1.addConstraint(Sketcher.Constraint("Parallel", 33, 37))
sketch1.addConstraint(Sketcher.Constraint("Parallel", 43, 47))
sketch1.addConstraint(Sketcher.Constraint("Perpendicular", 47, 49))
sketch1.addConstraint(Sketcher.Constraint("Parallel", 49, 53))
sketch1.addConstraint(Sketcher.Constraint("Parallel", 59, 63))
sketch1.addConstraint(Sketcher.Constraint("Perpendicular", 63, 68))
sketch1.addConstraint(Sketcher.Constraint("Perpendicular", 75, 84))
sketch1.addConstraint(Sketcher.Constraint("Horizontal", 0, 2, 31, 2))
sketch1.addConstraint(Sketcher.Constraint("Horizontal", 32, 2, 63, 2))
sketch1.addConstraint(Sketcher.Constraint("Horizontal", 19, 2, 65, 2))
sketch1.addConstraint(Sketcher.Constraint("Horizontal", 75, 2, 83, 2))
sketch1.addConstraint(Sketcher.Constraint("Vertical", 35, 2, 64, 2))
sketch1.addConstraint(Sketcher.Constraint("Equal", 48, 0))
sketch1.addConstraint(Sketcher.Constraint("Equal", 51, 3))
sketch1.addConstraint(Sketcher.Constraint("Equal", 55, 7))
sketch1.addConstraint(Sketcher.Constraint("Equal", 60, 12))
sketch1.addConstraint(Sketcher.Constraint("Equal", 62, 14))
sketch1.addConstraint(Sketcher.Constraint("Equal", 82, 65))
sketch1.addConstraint(Sketcher.Constraint("Equal", 5, 11))
sketch1.addConstraint(Sketcher.Constraint("Equal", 1, 15))
sketch1.addConstraint(Sketcher.Constraint("Diameter", 79, 4.2))
sketch1.addConstraint(Sketcher.Constraint("Radius", 8, 1.5))
sketch1.addConstraint(Sketcher.Constraint("Radius", 6, 0.79))
sketch1.addConstraint(Sketcher.Constraint("DistanceX", 6, 2, -1, 1, 10.0))
sketch1.addConstraint(Sketcher.Constraint("DistanceX", 4, 2, 4, 1, 0.11))
sketch1.addConstraint(Sketcher.Constraint("DistanceX", 13, 2, 13, 1, 2.61))
sketch1.addConstraint(Sketcher.Constraint("DistanceX", 64, 1, 64, 2, 0.54))
sketch1.addConstraint(Sketcher.Constraint("DistanceX", 66, 2, 66, 1, 1.63))
sketch1.addConstraint(Sketcher.Constraint("DistanceX", 0, 2, -1, 1, 3.4))
sketch1.addConstraint(Sketcher.Constraint("DistanceY", 1, 2, -1, 1, 5.5))
sketch1.addConstraint(Sketcher.Constraint("DistanceX", 2, 2, -1, 1, 8.2))
sketch1.addConstraint(Sketcher.Constraint("DistanceX", 2, 2, 2, 1, 1.63934))
pad1 = body.newObject("PartDesign::Pad", "Pad")
pad1.Profile = sketch1
pad1.Length = 1000
pad1.Reversed = True

doc.recompute()
